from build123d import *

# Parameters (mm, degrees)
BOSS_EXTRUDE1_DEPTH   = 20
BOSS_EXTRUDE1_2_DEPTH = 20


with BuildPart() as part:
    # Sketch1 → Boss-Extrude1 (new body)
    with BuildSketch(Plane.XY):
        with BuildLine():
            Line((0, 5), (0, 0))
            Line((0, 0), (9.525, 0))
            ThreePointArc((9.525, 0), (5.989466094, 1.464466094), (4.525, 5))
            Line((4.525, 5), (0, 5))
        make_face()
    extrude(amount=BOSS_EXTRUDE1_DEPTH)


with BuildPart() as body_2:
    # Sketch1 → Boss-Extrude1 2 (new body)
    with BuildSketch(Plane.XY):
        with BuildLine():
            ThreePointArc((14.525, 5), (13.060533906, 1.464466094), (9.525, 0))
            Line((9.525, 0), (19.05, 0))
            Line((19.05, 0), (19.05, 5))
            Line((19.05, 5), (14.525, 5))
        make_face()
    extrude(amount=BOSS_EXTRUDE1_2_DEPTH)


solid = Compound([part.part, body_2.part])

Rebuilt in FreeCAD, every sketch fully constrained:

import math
import FreeCAD as App
import Part
import Sketcher
from FreeCAD import Vector

doc = App.newDocument("Part")
body = doc.addObject("PartDesign::Body", "Body")

# Sketch on XY plane
sketch1 = body.newObject("Sketcher::SketchObject", "Sketch")
sketch1.AttachmentSupport = (doc.getObject("XY_Plane"), [""])
sketch1.MapMode = "FlatFace"
sketch1.addGeometry([
    Part.LineSegment(Vector(0, 5, 0), Vector(0, 0, 0)),
    Part.LineSegment(Vector(0, 0, 0), Vector(9.525, 0, 0)),
    Part.ArcOfCircle(Part.Circle(Vector(9.525, 5, 0), Vector(0, 0, 1), 5), math.radians(180), math.radians(270)),
    Part.LineSegment(Vector(4.525, 5, 0), Vector(0, 5, 0)),
], False)
sketch1.addConstraint([
    Sketcher.Constraint("Coincident", 0, 2, 1, 1),
    Sketcher.Constraint("Tangent", 1, 2, 2, 2),
    Sketcher.Constraint("Coincident", 2, 1, 3, 1),
    Sketcher.Constraint("Coincident", 3, 2, 0, 1),
    Sketcher.Constraint("Vertical", 0),
    Sketcher.Constraint("Horizontal", 1),
    Sketcher.Constraint("Horizontal", 3),
    Sketcher.Constraint("Coincident", 0, 2, -1, 1),
    Sketcher.Constraint("Radius", 2, 5.0),
    Sketcher.Constraint("DistanceY", 0, 2, 0, 1, 5.0),
    Sketcher.Constraint("DistanceX", 1, 1, 1, 2, 9.525),
])
pad1 = body.newObject("PartDesign::Pad", "Pad")
pad1.Profile = sketch1
pad1.Length = 20
body2 = doc.addObject("PartDesign::Body", "Body001")

# Sketch on XY plane
sketch2 = body2.newObject("Sketcher::SketchObject", "Sketch001")
sketch2.AttachmentSupport = (doc.getObject("XY_Plane001"), [""])
sketch2.MapMode = "FlatFace"
sketch2.addGeometry([
    Part.ArcOfCircle(Part.Circle(Vector(9.525, 5, 0), Vector(0, 0, 1), 5), math.radians(-90), math.radians(0)),
    Part.LineSegment(Vector(9.525, 0, 0), Vector(19.05, 0, 0)),
    Part.LineSegment(Vector(19.05, 0, 0), Vector(19.05, 5, 0)),
    Part.LineSegment(Vector(19.05, 5, 0), Vector(14.525, 5, 0)),
], False)
sketch2.addConstraint([
    Sketcher.Constraint("Tangent", 0, 1, 1, 1),
    Sketcher.Constraint("Coincident", 1, 2, 2, 1),
    Sketcher.Constraint("Coincident", 2, 2, 3, 1),
    Sketcher.Constraint("Coincident", 3, 2, 0, 2),
    Sketcher.Constraint("Horizontal", 1),
    Sketcher.Constraint("Vertical", 2),
    Sketcher.Constraint("Horizontal", 3),
    Sketcher.Constraint("PointOnObject", 0, 1, -1),
    Sketcher.Constraint("Horizontal", 0, 3, 2, 2),
    Sketcher.Constraint("Radius", 0, 5.0),
    Sketcher.Constraint("DistanceX", 1, 1, 1, 2, 9.525),
    Sketcher.Constraint("DistanceX", -1, 1, 1, 2, 19.05),
])
pad2 = body2.newObject("PartDesign::Pad", "Pad001")
pad2.Profile = sketch2
pad2.Length = 20

doc.recompute()
